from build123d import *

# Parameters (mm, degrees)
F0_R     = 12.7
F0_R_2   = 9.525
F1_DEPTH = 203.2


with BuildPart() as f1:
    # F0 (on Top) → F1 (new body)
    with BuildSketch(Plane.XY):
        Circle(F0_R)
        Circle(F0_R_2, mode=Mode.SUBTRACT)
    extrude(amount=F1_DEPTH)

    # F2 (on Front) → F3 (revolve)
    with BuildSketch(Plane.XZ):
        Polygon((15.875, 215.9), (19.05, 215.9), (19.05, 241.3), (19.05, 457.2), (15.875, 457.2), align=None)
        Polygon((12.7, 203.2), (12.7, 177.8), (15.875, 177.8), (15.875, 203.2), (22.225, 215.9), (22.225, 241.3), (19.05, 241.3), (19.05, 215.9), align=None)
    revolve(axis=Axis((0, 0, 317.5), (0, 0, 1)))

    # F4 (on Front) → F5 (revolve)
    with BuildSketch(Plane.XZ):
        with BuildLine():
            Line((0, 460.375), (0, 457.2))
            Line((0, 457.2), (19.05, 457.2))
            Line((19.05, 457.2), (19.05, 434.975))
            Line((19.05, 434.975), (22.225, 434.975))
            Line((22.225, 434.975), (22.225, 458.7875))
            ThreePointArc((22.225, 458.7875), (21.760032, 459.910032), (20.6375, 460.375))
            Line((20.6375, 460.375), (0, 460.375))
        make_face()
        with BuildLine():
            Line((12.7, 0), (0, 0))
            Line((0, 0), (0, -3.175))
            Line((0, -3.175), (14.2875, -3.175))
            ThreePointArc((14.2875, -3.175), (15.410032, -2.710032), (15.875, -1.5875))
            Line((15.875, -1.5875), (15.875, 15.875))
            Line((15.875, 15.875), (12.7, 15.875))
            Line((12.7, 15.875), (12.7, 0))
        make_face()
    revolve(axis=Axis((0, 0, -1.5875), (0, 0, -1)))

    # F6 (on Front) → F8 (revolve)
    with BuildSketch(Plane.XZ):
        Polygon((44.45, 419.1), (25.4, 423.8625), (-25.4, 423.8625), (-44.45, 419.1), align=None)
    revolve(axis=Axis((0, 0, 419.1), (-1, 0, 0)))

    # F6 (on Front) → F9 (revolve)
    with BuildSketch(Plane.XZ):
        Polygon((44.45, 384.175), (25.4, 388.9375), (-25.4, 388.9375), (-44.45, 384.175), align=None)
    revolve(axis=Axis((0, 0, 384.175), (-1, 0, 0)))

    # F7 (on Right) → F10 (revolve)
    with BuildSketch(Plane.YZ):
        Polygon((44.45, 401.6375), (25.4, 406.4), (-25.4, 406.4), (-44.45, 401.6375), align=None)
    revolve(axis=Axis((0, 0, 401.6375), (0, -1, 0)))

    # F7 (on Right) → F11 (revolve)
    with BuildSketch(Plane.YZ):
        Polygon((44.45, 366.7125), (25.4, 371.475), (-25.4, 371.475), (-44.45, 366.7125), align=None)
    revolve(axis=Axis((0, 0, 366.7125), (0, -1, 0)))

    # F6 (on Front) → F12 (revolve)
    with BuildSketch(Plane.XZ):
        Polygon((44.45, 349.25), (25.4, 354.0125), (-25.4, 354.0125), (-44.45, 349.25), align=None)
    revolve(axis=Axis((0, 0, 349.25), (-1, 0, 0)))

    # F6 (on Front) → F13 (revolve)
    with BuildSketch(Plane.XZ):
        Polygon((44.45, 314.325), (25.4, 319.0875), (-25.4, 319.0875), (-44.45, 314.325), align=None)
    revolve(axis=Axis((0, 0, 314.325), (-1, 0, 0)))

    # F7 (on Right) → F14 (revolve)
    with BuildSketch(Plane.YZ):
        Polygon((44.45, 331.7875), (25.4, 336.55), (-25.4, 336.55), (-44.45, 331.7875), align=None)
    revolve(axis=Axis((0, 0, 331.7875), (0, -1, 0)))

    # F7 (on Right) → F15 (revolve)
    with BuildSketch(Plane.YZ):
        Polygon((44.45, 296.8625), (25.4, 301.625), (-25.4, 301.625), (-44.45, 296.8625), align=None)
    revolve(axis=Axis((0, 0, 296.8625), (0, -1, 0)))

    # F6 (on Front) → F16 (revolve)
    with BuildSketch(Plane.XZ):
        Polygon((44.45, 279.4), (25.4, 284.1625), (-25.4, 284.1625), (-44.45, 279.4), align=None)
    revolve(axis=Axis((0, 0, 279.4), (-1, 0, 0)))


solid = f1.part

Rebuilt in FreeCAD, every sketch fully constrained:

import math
import FreeCAD as App
import Part
import Sketcher

V = App.Vector
Q = App.Units.Quantity

doc = App.newDocument("Part")
body = doc.addObject("PartDesign::Body", "Body")

# Sketch on XY plane
sketch1 = doc.addObject("Sketcher::SketchObject", "Sketch")
body.addObject(sketch1)
sketch1.AttachmentSupport = (doc.XY_Plane, [""])
sketch1.MapMode = "FlatFace"
sketch1.addGeometry([
    Part.Circle(V(0, 0, 0), V(0, 0, 1), 13),
    Part.Circle(V(0, 0, 0), V(0, 0, 1), 10),
], False)
sketch1.addConstraint([
    Sketcher.Constraint("Coincident", 0, 3, -1, 1),
    Sketcher.Constraint("Coincident", 1, 3, -1, 1),
    Sketcher.Constraint("Diameter", 0, Q("1 in")),
    Sketcher.Constraint("Diameter", 1, Q("0.75 in")),
])
pad1 = doc.addObject("PartDesign::Pad", "Pad")
body.addObject(pad1)
pad1.Profile = sketch1
pad1.Length = Q("8 in")

# Sketch on XZ plane
sketch2 = doc.addObject("Sketcher::SketchObject", "Sketch001")
body.addObject(sketch2)
sketch2.AttachmentSupport = (doc.XZ_Plane, [""])
sketch2.MapMode = "FlatFace"
sketch2.addGeometry([
    Part.LineSegment(V(15.9, 215.9, 0), V(19.1, 215.9, 0)),  # 0
    Part.LineSegment(V(19.1, 215.9, 0), V(12.7, 203.2, 0)),  # 1
    Part.LineSegment(V(12.7, 203.2, 0), V(12.7, 177.8, 0)),  # 2
    Part.LineSegment(V(12.7, 177.8, 0), V(15.9, 177.8, 0)),  # 3
    Part.LineSegment(V(15.9, 177.8, 0), V(15.9, 203.2, 0)),  # 4
    Part.LineSegment(V(15.9, 203.2, 0), V(22.2, 215.9, 0)),  # 5
    Part.LineSegment(V(22.2, 215.9, 0), V(22.2, 241.3, 0)),  # 6
    Part.LineSegment(V(22.2, 241.3, 0), V(19.1, 241.3, 0)),  # 7
    Part.LineSegment(V(19.1, 241.3, 0), V(19.1, 457.2, 0)),  # 8
    Part.LineSegment(V(19.1, 457.2, 0), V(15.9, 457.2, 0)),  # 9
    Part.LineSegment(V(15.9, 457.2, 0), V(15.9, 215.9, 0)),  # 10
], False)
sketch2.addConstraint([
    Sketcher.Constraint("Coincident", 0, 2, 1, 1),
    Sketcher.Constraint("Coincident", 1, 2, 2, 1),
    Sketcher.Constraint("Coincident", 2, 2, 3, 1),
    Sketcher.Constraint("Coincident", 3, 2, 4, 1),
    Sketcher.Constraint("Coincident", 4, 2, 5, 1),
    Sketcher.Constraint("Coincident", 5, 2, 6, 1),
    Sketcher.Constraint("Coincident", 6, 2, 7, 1),
    Sketcher.Constraint("Coincident", 7, 2, 8, 1),
    Sketcher.Constraint("Coincident", 8, 2, 9, 1),
    Sketcher.Constraint("Coincident", 9, 2, 10, 1),
    Sketcher.Constraint("Coincident", 10, 2, 0, 1),
    Sketcher.Constraint("Horizontal", 0),
    Sketcher.Constraint("Vertical", 2),
    Sketcher.Constraint("Horizontal", 3),
    Sketcher.Constraint("Vertical", 4),
    Sketcher.Constraint("Vertical", 6),
    Sketcher.Constraint("Horizontal", 7),
    Sketcher.Constraint("Vertical", 8),
    Sketcher.Constraint("Horizontal", 9),
    Sketcher.Constraint("Vertical", 10),
    Sketcher.Constraint("Parallel", 1, 5),
    Sketcher.Constraint("Horizontal", 1, 2, 4, 2),
    Sketcher.Constraint("Horizontal", 0, 2, 5, 2),
    Sketcher.Constraint("Vertical", 0, 2, 7, 2),
    Sketcher.Constraint("Vertical", 4, 2, 9, 2),
    Sketcher.Constraint("Equal", 0, 3),
    Sketcher.Constraint("Equal", 4, 6),
    Sketcher.Constraint("DistanceY", 2, 2, 2, 1, Q("1 in")),
    Sketcher.Constraint("DistanceY", 8, 1, 8, 2, Q("8.5 in")),
    Sketcher.Constraint("DistanceY", -1, 1, 1, 2, Q("8 in")),
    Sketcher.Constraint("DistanceY", -1, 1, 8, 2, Q("18 in")),
    Sketcher.Constraint("DistanceX", -1, 1, 1, 2, Q("0.5 in")),
    Sketcher.Constraint("DistanceX", 0, 1, 0, 2, Q("0.125 in")),
])
revolution = doc.addObject("PartDesign::Revolution", "Revolution")
body.addObject(revolution)
revolution.Profile = sketch2
revolution.ReferenceAxis = (sketch2, ["V_Axis"])
revolution.Angle = 360

# Sketch on XZ plane
sketch3 = doc.addObject("Sketcher::SketchObject", "Sketch002")
body.addObject(sketch3)
sketch3.AttachmentSupport = (doc.XZ_Plane, [""])
sketch3.MapMode = "FlatFace"
sketch3.addGeometry([
    Part.LineSegment(V(0, 460.4, 0), V(0, 457.2, 0)),  # 0
    Part.LineSegment(V(0, 457.2, 0), V(19.1, 457.2, 0)),  # 1
    Part.LineSegment(V(19.1, 457.2, 0), V(19.1, 435, 0)),  # 2
    Part.LineSegment(V(19.1, 435, 0), V(22.2, 435, 0)),  # 3
    Part.LineSegment(V(22.2, 435, 0), V(22.2, 458.8, 0)),  # 4
    Part.ArcOfCircle(Part.Circle(V(20.6, 458.8, 0), V(0, 0, 1), 1.6), math.radians(0), math.radians(90)),  # 5
    Part.LineSegment(V(20.6, 460.4, 0), V(0, 460.4, 0)),  # 6
    Part.LineSegment(V(12.7, 0, 0), V(0, 0, 0)),  # 7
    Part.LineSegment(V(0, 0, 0), V(0, -3.2, 0)),  # 8
    Part.LineSegment(V(0, -3.2, 0), V(14.3, -3.2, 0)),  # 9
    Part.ArcOfCircle(Part.Circle(V(14.3, -1.6, 0), V(0, 0, 1), 1.6), math.radians(-90), math.radians(0)),  # 10
    Part.LineSegment(V(15.9, -1.6, 0), V(15.9, 15.9, 0)),  # 11
    Part.LineSegment(V(15.9, 15.9, 0), V(12.7, 15.9, 0)),  # 12
    Part.LineSegment(V(12.7, 15.9, 0), V(12.7, 0, 0)),  # 13
], False)
sketch3.addConstraint([
    Sketcher.Constraint("Coincident", 0, 2, 1, 1),
    Sketcher.Constraint("Coincident", 1, 2, 2, 1),
    Sketcher.Constraint("Coincident", 2, 2, 3, 1),
    Sketcher.Constraint("Coincident", 3, 2, 4, 1),
    Sketcher.Constraint("Tangent", 4, 2, 5, 1),
    Sketcher.Constraint("Tangent", 5, 2, 6, 1),
    Sketcher.Constraint("Coincident", 6, 2, 0, 1),
    Sketcher.Constraint("Coincident", 7, 2, 8, 1),
    Sketcher.Constraint("Coincident", 8, 2, 9, 1),
    Sketcher.Constraint("Tangent", 9, 2, 10, 1),
    Sketcher.Constraint("Tangent", 10, 2, 11, 1),
    Sketcher.Constraint("Coincident", 11, 2, 12, 1),
    Sketcher.Constraint("Coincident", 12, 2, 13, 1),
    Sketcher.Constraint("Coincident", 13, 2, 7, 1),
    Sketcher.Constraint("Vertical", 0),
    Sketcher.Constraint("Horizontal", 1),
    Sketcher.Constraint("Vertical", 2),
    Sketcher.Constraint("Horizontal", 3),
    Sketcher.Constraint("Vertical", 4),
    Sketcher.Constraint("Horizontal", 6),
    Sketcher.Constraint("Horizontal", 7),
    Sketcher.Constraint("Vertical", 8),
    Sketcher.Constraint("Horizontal", 9),
    Sketcher.Constraint("Vertical", 11),
    Sketcher.Constraint("Horizontal", 12),
    Sketcher.Constraint("Vertical", 13),
    Sketcher.Constraint("Coincident", 7, 2, -1, 1),
    Sketcher.Constraint("Equal", 5, 10),
    Sketcher.Constraint("PointOnObject", 0, 2, -2),
    Sketcher.Constraint("Equal", 3, 12),
    Sketcher.Constraint("Equal", 12, 0),
    Sketcher.Constraint("Equal", 0, 8),
    Sketcher.Constraint("DistanceX", 7, 2, 7, 1, Q("0.5 in")),
    Sketcher.Constraint("DistanceY", -1, 1, 0, 2, Q("18 in")),
    Sketcher.Constraint("Radius", 5, Q("0.0625 in")),
    Sketcher.Constraint("DistanceY", 2, 2, 5, 2, Q("1 in")),
    Sketcher.Constraint("DistanceX", 1, 1, 1, 2, Q("0.75 in")),
    Sketcher.Constraint("DistanceX", 3, 1, 3, 2, Q("0.125 in")),
    Sketcher.Constraint("DistanceY", 11, 1, 11, 2, Q("0.6875 in")),
])
revolution2 = doc.addObject("PartDesign::Revolution", "Revolution001")
body.addObject(revolution2)
revolution2.Profile = sketch3
revolution2.ReferenceAxis = (sketch3, ["V_Axis"])
revolution2.Angle = 360

# Sketch on XZ plane
sketch4 = doc.addObject("Sketcher::SketchObject", "Sketch003")
body.addObject(sketch4)
sketch4.AttachmentSupport = (doc.XZ_Plane, [""])
sketch4.MapMode = "FlatFace"
sketch4.addGeometry([
    Part.LineSegment(V(44, 419, 0), V(25, 424, 0)),
    Part.LineSegment(V(25, 424, 0), V(-25, 424, 0)),
    Part.LineSegment(V(-25, 424, 0), V(-44, 419, 0)),
    Part.LineSegment(V(-44, 419, 0), V(44, 419, 0)),
], False)
sketch4.addGeometry(Part.LineSegment(V(44, 419, 0), V(-44, 419, 0)), True)  # axis
sketch4.addConstraint([
    Sketcher.Constraint("Coincident", 0, 2, 1, 1),
    Sketcher.Constraint("Coincident", 1, 2, 2, 1),
    Sketcher.Constraint("Coincident", 2, 2, 3, 1),
    Sketcher.Constraint("Coincident", 3, 2, 0, 1),
    Sketcher.Constraint("Horizontal", 1),
    Sketcher.Constraint("Horizontal", 3),
    Sketcher.Constraint("Horizontal", 4),
    Sketcher.Constraint("Coincident", 4, 1, 3, 2),
    Sketcher.Constraint("Equal", 3, 4),
    Sketcher.Constraint("Equal", 0, 2),
    Sketcher.Constraint("DistanceX", 1, 2, 1, 1, Q("2 in")),
    Sketcher.Constraint("DistanceX", 3, 1, 3, 2, Q("3.5 in")),
    Sketcher.Constraint("DistanceX", -1, 1, 0, 2, Q("1 in")),
    Sketcher.Constraint("DistanceY", -1, 1, 2, 2, Q("16.5 in")),
    Sketcher.Constraint("DistanceY", -1, 1, 0, 2, Q("16.6875 in")),
])
revolution3 = doc.addObject("PartDesign::Revolution", "Revolution002")
body.addObject(revolution3)
revolution3.Profile = sketch4
revolution3.ReferenceAxis = (sketch4, ["Axis0"])
revolution3.Angle = 360

# Sketch on XZ plane
sketch5 = doc.addObject("Sketcher::SketchObject", "Sketch004")
body.addObject(sketch5)
sketch5.AttachmentSupport = (doc.XZ_Plane, [""])
sketch5.MapMode = "FlatFace"
sketch5.addGeometry([
    Part.LineSegment(V(44, 384, 0), V(25, 389, 0)),
    Part.LineSegment(V(25, 389, 0), V(-25, 389, 0)),
    Part.LineSegment(V(-25, 389, 0), V(-44, 384, 0)),
    Part.LineSegment(V(-44, 384, 0), V(44, 384, 0)),
], False)
sketch5.addGeometry(Part.LineSegment(V(44, 384, 0), V(-44, 384, 0)), True)  # axis
sketch5.addConstraint([
    Sketcher.Constraint("Coincident", 0, 2, 1, 1),
    Sketcher.Constraint("Coincident", 1, 2, 2, 1),
    Sketcher.Constraint("Coincident", 2, 2, 3, 1),
    Sketcher.Constraint("Coincident", 3, 2, 0, 1),
    Sketcher.Constraint("Horizontal", 1),
    Sketcher.Constraint("Horizontal", 3),
    Sketcher.Constraint("Horizontal", 4),
    Sketcher.Constraint("Coincident", 4, 1, 3, 2),
    Sketcher.Constraint("Equal", 3, 4),
    Sketcher.Constraint("Equal", 0, 2),
    Sketcher.Constraint("DistanceX", 1, 2, 1, 1, Q("2 in")),
    Sketcher.Constraint("DistanceX", 3, 1, 3, 2, Q("3.5 in")),
    Sketcher.Constraint("DistanceX", -1, 1, 0, 2, Q("1 in")),
    Sketcher.Constraint("DistanceY", -1, 1, 0, 2, Q("15.3125 in")),
    Sketcher.Constraint("DistanceY", -1, 1, 2, 2, Q("15.125 in")),
])
revolution4 = doc.addObject("PartDesign::Revolution", "Revolution003")
body.addObject(revolution4)
revolution4.Profile = sketch5
revolution4.ReferenceAxis = (sketch5, ["Axis0"])
revolution4.Angle = 360

# Sketch on YZ plane
sketch6 = doc.addObject("Sketcher::SketchObject", "Sketch005")
body.addObject(sketch6)
sketch6.AttachmentSupport = (doc.YZ_Plane, [""])
sketch6.MapMode = "FlatFace"
sketch6.addGeometry([
    Part.LineSegment(V(44, 402, 0), V(25, 406, 0)),
    Part.LineSegment(V(25, 406, 0), V(-25, 406, 0)),
    Part.LineSegment(V(-25, 406, 0), V(-44, 402, 0)),
    Part.LineSegment(V(-44, 402, 0), V(44, 402, 0)),
], False)
sketch6.addGeometry(Part.LineSegment(V(44, 402, 0), V(-44, 402, 0)), True)  # axis
sketch6.addConstraint([
    Sketcher.Constraint("Coincident", 0, 2, 1, 1),
    Sketcher.Constraint("Coincident", 1, 2, 2, 1),
    Sketcher.Constraint("Coincident", 2, 2, 3, 1),
    Sketcher.Constraint("Coincident", 3, 2, 0, 1),
    Sketcher.Constraint("Horizontal", 1),
    Sketcher.Constraint("Horizontal", 3),
    Sketcher.Constraint("Horizontal", 4),
    Sketcher.Constraint("Coincident", 4, 1, 3, 2),
    Sketcher.Constraint("Equal", 3, 4),
    Sketcher.Constraint("Equal", 0, 2),
    Sketcher.Constraint("DistanceX", 1, 2, 1, 1, Q("2 in")),
    Sketcher.Constraint("DistanceX", 3, 1, 3, 2, Q("3.5 in")),
    Sketcher.Constraint("DistanceX", -1, 1, 0, 2, Q("1 in")),
    Sketcher.Constraint("DistanceY", -1, 1, 0, 2, Q("16 in")),
    Sketcher.Constraint("DistanceY", -1, 1, 2, 2, Q("15.8125 in")),
])
revolution5 = doc.addObject("PartDesign::Revolution", "Revolution004")
body.addObject(revolution5)
revolution5.Profile = sketch6
revolution5.ReferenceAxis = (sketch6, ["Axis0"])
revolution5.Angle = 360

# Sketch on YZ plane
sketch7 = doc.addObject("Sketcher::SketchObject", "Sketch006")
body.addObject(sketch7)
sketch7.AttachmentSupport = (doc.YZ_Plane, [""])
sketch7.MapMode = "FlatFace"
sketch7.addGeometry([
    Part.LineSegment(V(44, 367, 0), V(25, 371, 0)),
    Part.LineSegment(V(25, 371, 0), V(-25, 371, 0)),
    Part.LineSegment(V(-25, 371, 0), V(-44, 367, 0)),
    Part.LineSegment(V(-44, 367, 0), V(44, 367, 0)),
], False)
sketch7.addGeometry(Part.LineSegment(V(44, 367, 0), V(-44, 367, 0)), True)  # axis
sketch7.addConstraint([
    Sketcher.Constraint("Coincident", 0, 2, 1, 1),
    Sketcher.Constraint("Coincident", 1, 2, 2, 1),
    Sketcher.Constraint("Coincident", 2, 2, 3, 1),
    Sketcher.Constraint("Coincident", 3, 2, 0, 1),
    Sketcher.Constraint("Horizontal", 1),
    Sketcher.Constraint("Horizontal", 3),
    Sketcher.Constraint("Horizontal", 4),
    Sketcher.Constraint("Coincident", 4, 1, 3, 2),
    Sketcher.Constraint("Equal", 3, 4),
    Sketcher.Constraint("Equal", 0, 2),
    Sketcher.Constraint("DistanceX", 1, 2, 1, 1, Q("2 in")),
    Sketcher.Constraint("DistanceX", 3, 1, 3, 2, Q("3.5 in")),
    Sketcher.Constraint("DistanceX", -1, 1, 0, 2, Q("1 in")),
    Sketcher.Constraint("DistanceY", -1, 1, 0, 2, Q("14.625 in")),
    Sketcher.Constraint("DistanceY", -1, 1, 2, 2, Q("14.4375 in")),
])
revolution6 = doc.addObject("PartDesign::Revolution", "Revolution005")
body.addObject(revolution6)
revolution6.Profile = sketch7
revolution6.ReferenceAxis = (sketch7, ["Axis0"])
revolution6.Angle = 360

# Sketch on XZ plane
sketch8 = doc.addObject("Sketcher::SketchObject", "Sketch007")
body.addObject(sketch8)
sketch8.AttachmentSupport = (doc.XZ_Plane, [""])
sketch8.MapMode = "FlatFace"
sketch8.addGeometry([
    Part.LineSegment(V(44, 349, 0), V(25, 354, 0)),
    Part.LineSegment(V(25, 354, 0), V(-25, 354, 0)),
    Part.LineSegment(V(-25, 354, 0), V(-44, 349, 0)),
    Part.LineSegment(V(-44, 349, 0), V(44, 349, 0)),
], False)
sketch8.addGeometry(Part.LineSegment(V(44, 349, 0), V(-44, 349, 0)), True)  # axis
sketch8.addConstraint([
    Sketcher.Constraint("Coincident", 0, 2, 1, 1),
    Sketcher.Constraint("Coincident", 1, 2, 2, 1),
    Sketcher.Constraint("Coincident", 2, 2, 3, 1),
    Sketcher.Constraint("Coincident", 3, 2, 0, 1),
    Sketcher.Constraint("Horizontal", 1),
    Sketcher.Constraint("Horizontal", 3),
    Sketcher.Constraint("Horizontal", 4),
    Sketcher.Constraint("Coincident", 4, 1, 3, 2),
    Sketcher.Constraint("Equal", 3, 4),
    Sketcher.Constraint("Equal", 0, 2),
    Sketcher.Constraint("DistanceX", 1, 2, 1, 1, Q("2 in")),
    Sketcher.Constraint("DistanceX", 3, 1, 3, 2, Q("3.5 in")),
    Sketcher.Constraint("DistanceX", -1, 1, 0, 2, Q("1 in")),
    Sketcher.Constraint("DistanceY", -1, 1, 2, 2, Q("13.75 in")),
    Sketcher.Constraint("DistanceY", -1, 1, 0, 2, Q("13.9375 in")),
])
revolution7 = doc.addObject("PartDesign::Revolution", "Revolution006")
body.addObject(revolution7)
revolution7.Profile = sketch8
revolution7.ReferenceAxis = (sketch8, ["Axis0"])
revolution7.Angle = 360

# Sketch on XZ plane
sketch9 = doc.addObject("Sketcher::SketchObject", "Sketch008")
body.addObject(sketch9)
sketch9.AttachmentSupport = (doc.XZ_Plane, [""])
sketch9.MapMode = "FlatFace"
sketch9.addGeometry([
    Part.LineSegment(V(44, 314, 0), V(25, 319, 0)),
    Part.LineSegment(V(25, 319, 0), V(-25, 319, 0)),
    Part.LineSegment(V(-25, 319, 0), V(-44, 314, 0)),
    Part.LineSegment(V(-44, 314, 0), V(44, 314, 0)),
], False)
sketch9.addGeometry(Part.LineSegment(V(44, 314, 0), V(-44, 314, 0)), True)  # axis
sketch9.addConstraint([
    Sketcher.Constraint("Coincident", 0, 2, 1, 1),
    Sketcher.Constraint("Coincident", 1, 2, 2, 1),
    Sketcher.Constraint("Coincident", 2, 2, 3, 1),
    Sketcher.Constraint("Coincident", 3, 2, 0, 1),
    Sketcher.Constraint("Horizontal", 1),
    Sketcher.Constraint("Horizontal", 3),
    Sketcher.Constraint("Horizontal", 4),
    Sketcher.Constraint("Coincident", 4, 1, 3, 2),
    Sketcher.Constraint("Equal", 3, 4),
    Sketcher.Constraint("Equal", 0, 2),
    Sketcher.Constraint("DistanceX", 1, 2, 1, 1, Q("2 in")),
    Sketcher.Constraint("DistanceX", 3, 1, 3, 2, Q("3.5 in")),
    Sketcher.Constraint("DistanceX", -1, 1, 0, 2, Q("1 in")),
    Sketcher.Constraint("DistanceY", -1, 1, 0, 2, Q("12.5625 in")),
    Sketcher.Constraint("DistanceY", -1, 1, 2, 2, Q("12.375 in")),
])
revolution8 = doc.addObject("PartDesign::Revolution", "Revolution007")
body.addObject(revolution8)
revolution8.Profile = sketch9
revolution8.ReferenceAxis = (sketch9, ["Axis0"])
revolution8.Angle = 360

# Sketch on YZ plane
sketch10 = doc.addObject("Sketcher::SketchObject", "Sketch009")
body.addObject(sketch10)
sketch10.AttachmentSupport = (doc.YZ_Plane, [""])
sketch10.MapMode = "FlatFace"
sketch10.addGeometry([
    Part.LineSegment(V(44, 332, 0), V(25, 337, 0)),
    Part.LineSegment(V(25, 337, 0), V(-25, 337, 0)),
    Part.LineSegment(V(-25, 337, 0), V(-44, 332, 0)),
    Part.LineSegment(V(-44, 332, 0), V(44, 332, 0)),
], False)
sketch10.addGeometry(Part.LineSegment(V(44, 332, 0), V(-44, 332, 0)), True)  # axis
sketch10.addConstraint([
    Sketcher.Constraint("Coincident", 0, 2, 1, 1),
    Sketcher.Constraint("Coincident", 1, 2, 2, 1),
    Sketcher.Constraint("Coincident", 2, 2, 3, 1),
    Sketcher.Constraint("Coincident", 3, 2, 0, 1),
    Sketcher.Constraint("Horizontal", 1),
    Sketcher.Constraint("Horizontal", 3),
    Sketcher.Constraint("Horizontal", 4),
    Sketcher.Constraint("Coincident", 4, 1, 3, 2),
    Sketcher.Constraint("Equal", 3, 4),
    Sketcher.Constraint("Equal", 0, 2),
    Sketcher.Constraint("DistanceX", 1, 2, 1, 1, Q("2 in")),
    Sketcher.Constraint("DistanceX", 3, 1, 3, 2, Q("3.5 in")),
    Sketcher.Constraint("DistanceX", -1, 1, 0, 2, Q("1 in")),
    Sketcher.Constraint("DistanceY", -1, 1, 0, 2, Q("13.25 in")),
    Sketcher.Constraint("DistanceY", -1, 1, 2, 2, Q("13.0625 in")),
])
revolution9 = doc.addObject("PartDesign::Revolution", "Revolution008")
body.addObject(revolution9)
revolution9.Profile = sketch10
revolution9.ReferenceAxis = (sketch10, ["Axis0"])
revolution9.Angle = 360

# Sketch on YZ plane
sketch11 = doc.addObject("Sketcher::SketchObject", "Sketch010")
body.addObject(sketch11)
sketch11.AttachmentSupport = (doc.YZ_Plane, [""])
sketch11.MapMode = "FlatFace"
sketch11.addGeometry([
    Part.LineSegment(V(44, 297, 0), V(25, 302, 0)),
    Part.LineSegment(V(25, 302, 0), V(-25, 302, 0)),
    Part.LineSegment(V(-25, 302, 0), V(-44, 297, 0)),
    Part.LineSegment(V(-44, 297, 0), V(44, 297, 0)),
], False)
sketch11.addGeometry(Part.LineSegment(V(44, 297, 0), V(-44, 297, 0)), True)  # axis
sketch11.addConstraint([
    Sketcher.Constraint("Coincident", 0, 2, 1, 1),
    Sketcher.Constraint("Coincident", 1, 2, 2, 1),
    Sketcher.Constraint("Coincident", 2, 2, 3, 1),
    Sketcher.Constraint("Coincident", 3, 2, 0, 1),
    Sketcher.Constraint("Horizontal", 1),
    Sketcher.Constraint("Horizontal", 3),
    Sketcher.Constraint("Horizontal", 4),
    Sketcher.Constraint("Coincident", 4, 1, 3, 2),
    Sketcher.Constraint("Equal", 3, 4),
    Sketcher.Constraint("Equal", 0, 2),
    Sketcher.Constraint("DistanceX", 1, 2, 1, 1, Q("2 in")),
    Sketcher.Constraint("DistanceX", 3, 1, 3, 2, Q("3.5 in")),
    Sketcher.Constraint("DistanceX", -1, 1, 0, 2, Q("1 in")),
    Sketcher.Constraint("DistanceY", -1, 1, 0, 2, Q("11.875 in")),
    Sketcher.Constraint("DistanceY", -1, 1, 2, 2, Q("11.6875 in")),
])
revolution10 = doc.addObject("PartDesign::Revolution", "Revolution009")
body.addObject(revolution10)
revolution10.Profile = sketch11
revolution10.ReferenceAxis = (sketch11, ["Axis0"])
revolution10.Angle = 360

# Sketch on XZ plane
sketch12 = doc.addObject("Sketcher::SketchObject", "Sketch011")
body.addObject(sketch12)
sketch12.AttachmentSupport = (doc.XZ_Plane, [""])
sketch12.MapMode = "FlatFace"
sketch12.addGeometry([
    Part.LineSegment(V(44, 279, 0), V(25, 284, 0)),
    Part.LineSegment(V(25, 284, 0), V(-25, 284, 0)),
    Part.LineSegment(V(-25, 284, 0), V(-44, 279, 0)),
    Part.LineSegment(V(-44, 279, 0), V(44, 279, 0)),
], False)
sketch12.addGeometry(Part.LineSegment(V(44, 279, 0), V(-44, 279, 0)), True)  # axis
sketch12.addConstraint([
    Sketcher.Constraint("Coincident", 0, 2, 1, 1),
    Sketcher.Constraint("Coincident", 1, 2, 2, 1),
    Sketcher.Constraint("Coincident", 2, 2, 3, 1),
    Sketcher.Constraint("Coincident", 3, 2, 0, 1),
    Sketcher.Constraint("Horizontal", 1),
    Sketcher.Constraint("Horizontal", 3),
    Sketcher.Constraint("Horizontal", 4),
    Sketcher.Constraint("Coincident", 4, 1, 3, 2),
    Sketcher.Constraint("Equal", 3, 4),
    Sketcher.Constraint("Equal", 0, 2),
    Sketcher.Constraint("DistanceX", 1, 2, 1, 1, Q("2 in")),
    Sketcher.Constraint("DistanceX", 3, 1, 3, 2, Q("3.5 in")),
    Sketcher.Constraint("DistanceX", -1, 1, 0, 2, Q("1 in")),
    Sketcher.Constraint("DistanceY", -1, 1, 2, 2, Q("11 in")),
    Sketcher.Constraint("DistanceY", -1, 1, 0, 2, Q("11.1875 in")),
])
revolution11 = doc.addObject("PartDesign::Revolution", "Revolution010")
body.addObject(revolution11)
revolution11.Profile = sketch12
revolution11.ReferenceAxis = (sketch12, ["Axis0"])
revolution11.Angle = 360

doc.recompute()
